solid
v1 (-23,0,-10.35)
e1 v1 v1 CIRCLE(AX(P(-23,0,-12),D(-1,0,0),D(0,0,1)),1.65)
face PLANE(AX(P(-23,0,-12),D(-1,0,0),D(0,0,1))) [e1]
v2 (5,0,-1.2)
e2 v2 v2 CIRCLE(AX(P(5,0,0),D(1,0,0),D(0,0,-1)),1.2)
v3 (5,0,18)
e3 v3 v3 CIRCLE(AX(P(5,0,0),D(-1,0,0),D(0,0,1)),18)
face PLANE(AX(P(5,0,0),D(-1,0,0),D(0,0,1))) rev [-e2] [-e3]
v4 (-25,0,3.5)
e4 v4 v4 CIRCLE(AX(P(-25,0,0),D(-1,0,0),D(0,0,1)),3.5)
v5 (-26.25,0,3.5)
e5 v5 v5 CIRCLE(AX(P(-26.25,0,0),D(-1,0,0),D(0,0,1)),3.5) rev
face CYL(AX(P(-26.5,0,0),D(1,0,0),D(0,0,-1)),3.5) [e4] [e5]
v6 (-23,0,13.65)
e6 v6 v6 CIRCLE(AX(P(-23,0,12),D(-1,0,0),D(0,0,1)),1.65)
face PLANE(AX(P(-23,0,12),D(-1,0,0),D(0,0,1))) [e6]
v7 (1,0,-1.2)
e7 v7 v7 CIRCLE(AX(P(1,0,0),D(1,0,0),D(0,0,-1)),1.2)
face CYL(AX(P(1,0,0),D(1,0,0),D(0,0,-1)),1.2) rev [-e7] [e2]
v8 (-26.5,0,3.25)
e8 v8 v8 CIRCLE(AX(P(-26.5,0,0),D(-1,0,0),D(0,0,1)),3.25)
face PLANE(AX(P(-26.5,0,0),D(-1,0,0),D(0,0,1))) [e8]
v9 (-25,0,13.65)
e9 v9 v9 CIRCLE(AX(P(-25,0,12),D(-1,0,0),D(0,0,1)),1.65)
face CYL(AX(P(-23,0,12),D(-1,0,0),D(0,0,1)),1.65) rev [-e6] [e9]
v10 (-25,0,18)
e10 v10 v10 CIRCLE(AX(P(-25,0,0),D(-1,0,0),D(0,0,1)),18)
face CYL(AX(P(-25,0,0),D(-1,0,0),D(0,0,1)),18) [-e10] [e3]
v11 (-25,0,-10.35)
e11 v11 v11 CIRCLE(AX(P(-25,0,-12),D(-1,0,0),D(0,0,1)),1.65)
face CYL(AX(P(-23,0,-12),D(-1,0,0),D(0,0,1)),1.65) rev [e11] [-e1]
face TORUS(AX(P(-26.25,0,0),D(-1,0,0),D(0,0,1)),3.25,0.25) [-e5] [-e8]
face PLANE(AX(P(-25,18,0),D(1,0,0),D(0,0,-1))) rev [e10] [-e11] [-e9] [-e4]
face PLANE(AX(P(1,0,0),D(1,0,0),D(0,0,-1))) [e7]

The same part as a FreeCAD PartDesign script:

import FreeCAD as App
import Part
import Sketcher

V = App.Vector


def edges_at(feature, points):
    """Names of the edges that pass closest to the given points."""
    edges = feature.Shape.Edges
    near = lambda p: min(range(len(edges)), key=lambda i: edges[i].distToShape(Part.Vertex(*p))[0])
    return sorted({f"Edge{near(p) + 1}" for p in points})

doc = App.newDocument("Part")
body = doc.addObject("PartDesign::Body", "Body")

sketch1 = body.newObject("Sketcher::SketchObject", "Sketch")
sketch1.AttachmentSupport = (doc.getObject("XY_Plane"), [""])
sketch1.MapMode = "FlatFace"
sketch1.addGeometry(Part.LineSegment(V(-25, 18, 0), V(-25, 0, 0)), False)
sketch1.addGeometry(Part.LineSegment(V(-25, 0, 0), V(5, 0, 0)), False)
sketch1.addGeometry(Part.LineSegment(V(5, 0, 0), V(5, 18, 0)), False)
sketch1.addGeometry(Part.LineSegment(V(5, 18, 0), V(-25, 18, 0)), False)
sketch1.addConstraint(Sketcher.Constraint("Coincident", 0, 2, 1, 1))
sketch1.addConstraint(Sketcher.Constraint("Coincident", 1, 2, 2, 1))
sketch1.addConstraint(Sketcher.Constraint("Coincident", 2, 2, 3, 1))
sketch1.addConstraint(Sketcher.Constraint("Coincident", 3, 2, 0, 1))
sketch1.addConstraint(Sketcher.Constraint("Vertical", 0))
sketch1.addConstraint(Sketcher.Constraint("Horizontal", 1))
sketch1.addConstraint(Sketcher.Constraint("Vertical", 2))
sketch1.addConstraint(Sketcher.Constraint("Horizontal", 3))
sketch1.addConstraint(Sketcher.Constraint("PointOnObject", 0, 2, -1))
sketch1.addConstraint(Sketcher.Constraint("DistanceX", 1, 1, 1, 2, 30.0))
sketch1.addConstraint(Sketcher.Constraint("DistanceY", 0, 2, 0, 1, 18.0))
sketch1.addConstraint(Sketcher.Constraint("DistanceX", 0, 2, -1, 1, 25.0))
revolution = body.newObject("PartDesign::Revolution", "Revolution")
revolution.Profile = sketch1
revolution.ReferenceAxis = (sketch1, ["H_Axis"])
revolution.Angle = 360

sketch2 = body.newObject("Sketcher::SketchObject", "Sketch001")
sketch2.AttachmentSupport = (doc.getObject("YZ_Plane"), [""])
sketch2.MapMode = "FlatFace"
sketch2.AttachmentOffset = App.Placement(V(0, 0, 5), App.Rotation())
sketch2.addGeometry(Part.Circle(V(0, 0, 0), V(0, 0, 1), 1.2), False)
sketch2.addConstraint(Sketcher.Constraint("Coincident", 0, 3, -1, 1))
sketch2.addConstraint(Sketcher.Constraint("Diameter", 0, 2.4))
pocket1 = body.newObject("PartDesign::Pocket", "Pocket")
pocket1.Profile = sketch2
pocket1.Length = 4

sketch3 = body.newObject("Sketcher::SketchObject", "Sketch002")
sketch3.AttachmentSupport = (doc.getObject("YZ_Plane"), [""])
sketch3.MapMode = "FlatFace"
sketch3.AttachmentOffset = App.Placement(V(0, 0, -25), App.Rotation())
sketch3.addGeometry(Part.Circle(V(0, 0, 0), V(0, 0, 1), 3.5), False)
sketch3.addConstraint(Sketcher.Constraint("Coincident", 0, 3, -1, 1))
sketch3.addConstraint(Sketcher.Constraint("Diameter", 0, 7.0))
pad1 = body.newObject("PartDesign::Pad", "Pad")
pad1.Profile = sketch3
pad1.Length = 1.5
pad1.Reversed = True
doc.recompute()

fillet = body.newObject("PartDesign::Fillet", "Fillet")
fillet.Base = (pad1, edges_at(pad1, [(-26.5, 0, -3.5)]))
fillet.Radius = 0.25

sketch4 = body.newObject("Sketcher::SketchObject", "Sketch003")
sketch4.AttachmentSupport = (doc.getObject("YZ_Plane"), [""])
sketch4.MapMode = "FlatFace"
sketch4.AttachmentOffset = App.Placement(V(0, 0, -25), App.Rotation())
sketch4.addGeometry(Part.Circle(V(0, -12, 0), V(0, 0, 1), 1.6), False)
sketch4.addGeometry(Part.Circle(V(0, 12, 0), V(0, 0, 1), 1.6), False)
sketch4.addConstraint(Sketcher.Constraint("Equal", 0, 1))
sketch4.addConstraint(Sketcher.Constraint("Symmetric", 0, 3, 1, 3, -1, 1))
sketch4.addConstraint(Sketcher.Constraint("PointOnObject", 0, 3, -2))
sketch4.addConstraint(Sketcher.Constraint("Diameter", 0, 3.3))
sketch4.addConstraint(Sketcher.Constraint("DistanceY", 0, 3, -1, 1, 12.0))
pocket2 = body.newObject("PartDesign::Pocket", "Pocket001")
pocket2.Profile = sketch4
pocket2.Length = 2
pocket2.Reversed = True

doc.recompute()
